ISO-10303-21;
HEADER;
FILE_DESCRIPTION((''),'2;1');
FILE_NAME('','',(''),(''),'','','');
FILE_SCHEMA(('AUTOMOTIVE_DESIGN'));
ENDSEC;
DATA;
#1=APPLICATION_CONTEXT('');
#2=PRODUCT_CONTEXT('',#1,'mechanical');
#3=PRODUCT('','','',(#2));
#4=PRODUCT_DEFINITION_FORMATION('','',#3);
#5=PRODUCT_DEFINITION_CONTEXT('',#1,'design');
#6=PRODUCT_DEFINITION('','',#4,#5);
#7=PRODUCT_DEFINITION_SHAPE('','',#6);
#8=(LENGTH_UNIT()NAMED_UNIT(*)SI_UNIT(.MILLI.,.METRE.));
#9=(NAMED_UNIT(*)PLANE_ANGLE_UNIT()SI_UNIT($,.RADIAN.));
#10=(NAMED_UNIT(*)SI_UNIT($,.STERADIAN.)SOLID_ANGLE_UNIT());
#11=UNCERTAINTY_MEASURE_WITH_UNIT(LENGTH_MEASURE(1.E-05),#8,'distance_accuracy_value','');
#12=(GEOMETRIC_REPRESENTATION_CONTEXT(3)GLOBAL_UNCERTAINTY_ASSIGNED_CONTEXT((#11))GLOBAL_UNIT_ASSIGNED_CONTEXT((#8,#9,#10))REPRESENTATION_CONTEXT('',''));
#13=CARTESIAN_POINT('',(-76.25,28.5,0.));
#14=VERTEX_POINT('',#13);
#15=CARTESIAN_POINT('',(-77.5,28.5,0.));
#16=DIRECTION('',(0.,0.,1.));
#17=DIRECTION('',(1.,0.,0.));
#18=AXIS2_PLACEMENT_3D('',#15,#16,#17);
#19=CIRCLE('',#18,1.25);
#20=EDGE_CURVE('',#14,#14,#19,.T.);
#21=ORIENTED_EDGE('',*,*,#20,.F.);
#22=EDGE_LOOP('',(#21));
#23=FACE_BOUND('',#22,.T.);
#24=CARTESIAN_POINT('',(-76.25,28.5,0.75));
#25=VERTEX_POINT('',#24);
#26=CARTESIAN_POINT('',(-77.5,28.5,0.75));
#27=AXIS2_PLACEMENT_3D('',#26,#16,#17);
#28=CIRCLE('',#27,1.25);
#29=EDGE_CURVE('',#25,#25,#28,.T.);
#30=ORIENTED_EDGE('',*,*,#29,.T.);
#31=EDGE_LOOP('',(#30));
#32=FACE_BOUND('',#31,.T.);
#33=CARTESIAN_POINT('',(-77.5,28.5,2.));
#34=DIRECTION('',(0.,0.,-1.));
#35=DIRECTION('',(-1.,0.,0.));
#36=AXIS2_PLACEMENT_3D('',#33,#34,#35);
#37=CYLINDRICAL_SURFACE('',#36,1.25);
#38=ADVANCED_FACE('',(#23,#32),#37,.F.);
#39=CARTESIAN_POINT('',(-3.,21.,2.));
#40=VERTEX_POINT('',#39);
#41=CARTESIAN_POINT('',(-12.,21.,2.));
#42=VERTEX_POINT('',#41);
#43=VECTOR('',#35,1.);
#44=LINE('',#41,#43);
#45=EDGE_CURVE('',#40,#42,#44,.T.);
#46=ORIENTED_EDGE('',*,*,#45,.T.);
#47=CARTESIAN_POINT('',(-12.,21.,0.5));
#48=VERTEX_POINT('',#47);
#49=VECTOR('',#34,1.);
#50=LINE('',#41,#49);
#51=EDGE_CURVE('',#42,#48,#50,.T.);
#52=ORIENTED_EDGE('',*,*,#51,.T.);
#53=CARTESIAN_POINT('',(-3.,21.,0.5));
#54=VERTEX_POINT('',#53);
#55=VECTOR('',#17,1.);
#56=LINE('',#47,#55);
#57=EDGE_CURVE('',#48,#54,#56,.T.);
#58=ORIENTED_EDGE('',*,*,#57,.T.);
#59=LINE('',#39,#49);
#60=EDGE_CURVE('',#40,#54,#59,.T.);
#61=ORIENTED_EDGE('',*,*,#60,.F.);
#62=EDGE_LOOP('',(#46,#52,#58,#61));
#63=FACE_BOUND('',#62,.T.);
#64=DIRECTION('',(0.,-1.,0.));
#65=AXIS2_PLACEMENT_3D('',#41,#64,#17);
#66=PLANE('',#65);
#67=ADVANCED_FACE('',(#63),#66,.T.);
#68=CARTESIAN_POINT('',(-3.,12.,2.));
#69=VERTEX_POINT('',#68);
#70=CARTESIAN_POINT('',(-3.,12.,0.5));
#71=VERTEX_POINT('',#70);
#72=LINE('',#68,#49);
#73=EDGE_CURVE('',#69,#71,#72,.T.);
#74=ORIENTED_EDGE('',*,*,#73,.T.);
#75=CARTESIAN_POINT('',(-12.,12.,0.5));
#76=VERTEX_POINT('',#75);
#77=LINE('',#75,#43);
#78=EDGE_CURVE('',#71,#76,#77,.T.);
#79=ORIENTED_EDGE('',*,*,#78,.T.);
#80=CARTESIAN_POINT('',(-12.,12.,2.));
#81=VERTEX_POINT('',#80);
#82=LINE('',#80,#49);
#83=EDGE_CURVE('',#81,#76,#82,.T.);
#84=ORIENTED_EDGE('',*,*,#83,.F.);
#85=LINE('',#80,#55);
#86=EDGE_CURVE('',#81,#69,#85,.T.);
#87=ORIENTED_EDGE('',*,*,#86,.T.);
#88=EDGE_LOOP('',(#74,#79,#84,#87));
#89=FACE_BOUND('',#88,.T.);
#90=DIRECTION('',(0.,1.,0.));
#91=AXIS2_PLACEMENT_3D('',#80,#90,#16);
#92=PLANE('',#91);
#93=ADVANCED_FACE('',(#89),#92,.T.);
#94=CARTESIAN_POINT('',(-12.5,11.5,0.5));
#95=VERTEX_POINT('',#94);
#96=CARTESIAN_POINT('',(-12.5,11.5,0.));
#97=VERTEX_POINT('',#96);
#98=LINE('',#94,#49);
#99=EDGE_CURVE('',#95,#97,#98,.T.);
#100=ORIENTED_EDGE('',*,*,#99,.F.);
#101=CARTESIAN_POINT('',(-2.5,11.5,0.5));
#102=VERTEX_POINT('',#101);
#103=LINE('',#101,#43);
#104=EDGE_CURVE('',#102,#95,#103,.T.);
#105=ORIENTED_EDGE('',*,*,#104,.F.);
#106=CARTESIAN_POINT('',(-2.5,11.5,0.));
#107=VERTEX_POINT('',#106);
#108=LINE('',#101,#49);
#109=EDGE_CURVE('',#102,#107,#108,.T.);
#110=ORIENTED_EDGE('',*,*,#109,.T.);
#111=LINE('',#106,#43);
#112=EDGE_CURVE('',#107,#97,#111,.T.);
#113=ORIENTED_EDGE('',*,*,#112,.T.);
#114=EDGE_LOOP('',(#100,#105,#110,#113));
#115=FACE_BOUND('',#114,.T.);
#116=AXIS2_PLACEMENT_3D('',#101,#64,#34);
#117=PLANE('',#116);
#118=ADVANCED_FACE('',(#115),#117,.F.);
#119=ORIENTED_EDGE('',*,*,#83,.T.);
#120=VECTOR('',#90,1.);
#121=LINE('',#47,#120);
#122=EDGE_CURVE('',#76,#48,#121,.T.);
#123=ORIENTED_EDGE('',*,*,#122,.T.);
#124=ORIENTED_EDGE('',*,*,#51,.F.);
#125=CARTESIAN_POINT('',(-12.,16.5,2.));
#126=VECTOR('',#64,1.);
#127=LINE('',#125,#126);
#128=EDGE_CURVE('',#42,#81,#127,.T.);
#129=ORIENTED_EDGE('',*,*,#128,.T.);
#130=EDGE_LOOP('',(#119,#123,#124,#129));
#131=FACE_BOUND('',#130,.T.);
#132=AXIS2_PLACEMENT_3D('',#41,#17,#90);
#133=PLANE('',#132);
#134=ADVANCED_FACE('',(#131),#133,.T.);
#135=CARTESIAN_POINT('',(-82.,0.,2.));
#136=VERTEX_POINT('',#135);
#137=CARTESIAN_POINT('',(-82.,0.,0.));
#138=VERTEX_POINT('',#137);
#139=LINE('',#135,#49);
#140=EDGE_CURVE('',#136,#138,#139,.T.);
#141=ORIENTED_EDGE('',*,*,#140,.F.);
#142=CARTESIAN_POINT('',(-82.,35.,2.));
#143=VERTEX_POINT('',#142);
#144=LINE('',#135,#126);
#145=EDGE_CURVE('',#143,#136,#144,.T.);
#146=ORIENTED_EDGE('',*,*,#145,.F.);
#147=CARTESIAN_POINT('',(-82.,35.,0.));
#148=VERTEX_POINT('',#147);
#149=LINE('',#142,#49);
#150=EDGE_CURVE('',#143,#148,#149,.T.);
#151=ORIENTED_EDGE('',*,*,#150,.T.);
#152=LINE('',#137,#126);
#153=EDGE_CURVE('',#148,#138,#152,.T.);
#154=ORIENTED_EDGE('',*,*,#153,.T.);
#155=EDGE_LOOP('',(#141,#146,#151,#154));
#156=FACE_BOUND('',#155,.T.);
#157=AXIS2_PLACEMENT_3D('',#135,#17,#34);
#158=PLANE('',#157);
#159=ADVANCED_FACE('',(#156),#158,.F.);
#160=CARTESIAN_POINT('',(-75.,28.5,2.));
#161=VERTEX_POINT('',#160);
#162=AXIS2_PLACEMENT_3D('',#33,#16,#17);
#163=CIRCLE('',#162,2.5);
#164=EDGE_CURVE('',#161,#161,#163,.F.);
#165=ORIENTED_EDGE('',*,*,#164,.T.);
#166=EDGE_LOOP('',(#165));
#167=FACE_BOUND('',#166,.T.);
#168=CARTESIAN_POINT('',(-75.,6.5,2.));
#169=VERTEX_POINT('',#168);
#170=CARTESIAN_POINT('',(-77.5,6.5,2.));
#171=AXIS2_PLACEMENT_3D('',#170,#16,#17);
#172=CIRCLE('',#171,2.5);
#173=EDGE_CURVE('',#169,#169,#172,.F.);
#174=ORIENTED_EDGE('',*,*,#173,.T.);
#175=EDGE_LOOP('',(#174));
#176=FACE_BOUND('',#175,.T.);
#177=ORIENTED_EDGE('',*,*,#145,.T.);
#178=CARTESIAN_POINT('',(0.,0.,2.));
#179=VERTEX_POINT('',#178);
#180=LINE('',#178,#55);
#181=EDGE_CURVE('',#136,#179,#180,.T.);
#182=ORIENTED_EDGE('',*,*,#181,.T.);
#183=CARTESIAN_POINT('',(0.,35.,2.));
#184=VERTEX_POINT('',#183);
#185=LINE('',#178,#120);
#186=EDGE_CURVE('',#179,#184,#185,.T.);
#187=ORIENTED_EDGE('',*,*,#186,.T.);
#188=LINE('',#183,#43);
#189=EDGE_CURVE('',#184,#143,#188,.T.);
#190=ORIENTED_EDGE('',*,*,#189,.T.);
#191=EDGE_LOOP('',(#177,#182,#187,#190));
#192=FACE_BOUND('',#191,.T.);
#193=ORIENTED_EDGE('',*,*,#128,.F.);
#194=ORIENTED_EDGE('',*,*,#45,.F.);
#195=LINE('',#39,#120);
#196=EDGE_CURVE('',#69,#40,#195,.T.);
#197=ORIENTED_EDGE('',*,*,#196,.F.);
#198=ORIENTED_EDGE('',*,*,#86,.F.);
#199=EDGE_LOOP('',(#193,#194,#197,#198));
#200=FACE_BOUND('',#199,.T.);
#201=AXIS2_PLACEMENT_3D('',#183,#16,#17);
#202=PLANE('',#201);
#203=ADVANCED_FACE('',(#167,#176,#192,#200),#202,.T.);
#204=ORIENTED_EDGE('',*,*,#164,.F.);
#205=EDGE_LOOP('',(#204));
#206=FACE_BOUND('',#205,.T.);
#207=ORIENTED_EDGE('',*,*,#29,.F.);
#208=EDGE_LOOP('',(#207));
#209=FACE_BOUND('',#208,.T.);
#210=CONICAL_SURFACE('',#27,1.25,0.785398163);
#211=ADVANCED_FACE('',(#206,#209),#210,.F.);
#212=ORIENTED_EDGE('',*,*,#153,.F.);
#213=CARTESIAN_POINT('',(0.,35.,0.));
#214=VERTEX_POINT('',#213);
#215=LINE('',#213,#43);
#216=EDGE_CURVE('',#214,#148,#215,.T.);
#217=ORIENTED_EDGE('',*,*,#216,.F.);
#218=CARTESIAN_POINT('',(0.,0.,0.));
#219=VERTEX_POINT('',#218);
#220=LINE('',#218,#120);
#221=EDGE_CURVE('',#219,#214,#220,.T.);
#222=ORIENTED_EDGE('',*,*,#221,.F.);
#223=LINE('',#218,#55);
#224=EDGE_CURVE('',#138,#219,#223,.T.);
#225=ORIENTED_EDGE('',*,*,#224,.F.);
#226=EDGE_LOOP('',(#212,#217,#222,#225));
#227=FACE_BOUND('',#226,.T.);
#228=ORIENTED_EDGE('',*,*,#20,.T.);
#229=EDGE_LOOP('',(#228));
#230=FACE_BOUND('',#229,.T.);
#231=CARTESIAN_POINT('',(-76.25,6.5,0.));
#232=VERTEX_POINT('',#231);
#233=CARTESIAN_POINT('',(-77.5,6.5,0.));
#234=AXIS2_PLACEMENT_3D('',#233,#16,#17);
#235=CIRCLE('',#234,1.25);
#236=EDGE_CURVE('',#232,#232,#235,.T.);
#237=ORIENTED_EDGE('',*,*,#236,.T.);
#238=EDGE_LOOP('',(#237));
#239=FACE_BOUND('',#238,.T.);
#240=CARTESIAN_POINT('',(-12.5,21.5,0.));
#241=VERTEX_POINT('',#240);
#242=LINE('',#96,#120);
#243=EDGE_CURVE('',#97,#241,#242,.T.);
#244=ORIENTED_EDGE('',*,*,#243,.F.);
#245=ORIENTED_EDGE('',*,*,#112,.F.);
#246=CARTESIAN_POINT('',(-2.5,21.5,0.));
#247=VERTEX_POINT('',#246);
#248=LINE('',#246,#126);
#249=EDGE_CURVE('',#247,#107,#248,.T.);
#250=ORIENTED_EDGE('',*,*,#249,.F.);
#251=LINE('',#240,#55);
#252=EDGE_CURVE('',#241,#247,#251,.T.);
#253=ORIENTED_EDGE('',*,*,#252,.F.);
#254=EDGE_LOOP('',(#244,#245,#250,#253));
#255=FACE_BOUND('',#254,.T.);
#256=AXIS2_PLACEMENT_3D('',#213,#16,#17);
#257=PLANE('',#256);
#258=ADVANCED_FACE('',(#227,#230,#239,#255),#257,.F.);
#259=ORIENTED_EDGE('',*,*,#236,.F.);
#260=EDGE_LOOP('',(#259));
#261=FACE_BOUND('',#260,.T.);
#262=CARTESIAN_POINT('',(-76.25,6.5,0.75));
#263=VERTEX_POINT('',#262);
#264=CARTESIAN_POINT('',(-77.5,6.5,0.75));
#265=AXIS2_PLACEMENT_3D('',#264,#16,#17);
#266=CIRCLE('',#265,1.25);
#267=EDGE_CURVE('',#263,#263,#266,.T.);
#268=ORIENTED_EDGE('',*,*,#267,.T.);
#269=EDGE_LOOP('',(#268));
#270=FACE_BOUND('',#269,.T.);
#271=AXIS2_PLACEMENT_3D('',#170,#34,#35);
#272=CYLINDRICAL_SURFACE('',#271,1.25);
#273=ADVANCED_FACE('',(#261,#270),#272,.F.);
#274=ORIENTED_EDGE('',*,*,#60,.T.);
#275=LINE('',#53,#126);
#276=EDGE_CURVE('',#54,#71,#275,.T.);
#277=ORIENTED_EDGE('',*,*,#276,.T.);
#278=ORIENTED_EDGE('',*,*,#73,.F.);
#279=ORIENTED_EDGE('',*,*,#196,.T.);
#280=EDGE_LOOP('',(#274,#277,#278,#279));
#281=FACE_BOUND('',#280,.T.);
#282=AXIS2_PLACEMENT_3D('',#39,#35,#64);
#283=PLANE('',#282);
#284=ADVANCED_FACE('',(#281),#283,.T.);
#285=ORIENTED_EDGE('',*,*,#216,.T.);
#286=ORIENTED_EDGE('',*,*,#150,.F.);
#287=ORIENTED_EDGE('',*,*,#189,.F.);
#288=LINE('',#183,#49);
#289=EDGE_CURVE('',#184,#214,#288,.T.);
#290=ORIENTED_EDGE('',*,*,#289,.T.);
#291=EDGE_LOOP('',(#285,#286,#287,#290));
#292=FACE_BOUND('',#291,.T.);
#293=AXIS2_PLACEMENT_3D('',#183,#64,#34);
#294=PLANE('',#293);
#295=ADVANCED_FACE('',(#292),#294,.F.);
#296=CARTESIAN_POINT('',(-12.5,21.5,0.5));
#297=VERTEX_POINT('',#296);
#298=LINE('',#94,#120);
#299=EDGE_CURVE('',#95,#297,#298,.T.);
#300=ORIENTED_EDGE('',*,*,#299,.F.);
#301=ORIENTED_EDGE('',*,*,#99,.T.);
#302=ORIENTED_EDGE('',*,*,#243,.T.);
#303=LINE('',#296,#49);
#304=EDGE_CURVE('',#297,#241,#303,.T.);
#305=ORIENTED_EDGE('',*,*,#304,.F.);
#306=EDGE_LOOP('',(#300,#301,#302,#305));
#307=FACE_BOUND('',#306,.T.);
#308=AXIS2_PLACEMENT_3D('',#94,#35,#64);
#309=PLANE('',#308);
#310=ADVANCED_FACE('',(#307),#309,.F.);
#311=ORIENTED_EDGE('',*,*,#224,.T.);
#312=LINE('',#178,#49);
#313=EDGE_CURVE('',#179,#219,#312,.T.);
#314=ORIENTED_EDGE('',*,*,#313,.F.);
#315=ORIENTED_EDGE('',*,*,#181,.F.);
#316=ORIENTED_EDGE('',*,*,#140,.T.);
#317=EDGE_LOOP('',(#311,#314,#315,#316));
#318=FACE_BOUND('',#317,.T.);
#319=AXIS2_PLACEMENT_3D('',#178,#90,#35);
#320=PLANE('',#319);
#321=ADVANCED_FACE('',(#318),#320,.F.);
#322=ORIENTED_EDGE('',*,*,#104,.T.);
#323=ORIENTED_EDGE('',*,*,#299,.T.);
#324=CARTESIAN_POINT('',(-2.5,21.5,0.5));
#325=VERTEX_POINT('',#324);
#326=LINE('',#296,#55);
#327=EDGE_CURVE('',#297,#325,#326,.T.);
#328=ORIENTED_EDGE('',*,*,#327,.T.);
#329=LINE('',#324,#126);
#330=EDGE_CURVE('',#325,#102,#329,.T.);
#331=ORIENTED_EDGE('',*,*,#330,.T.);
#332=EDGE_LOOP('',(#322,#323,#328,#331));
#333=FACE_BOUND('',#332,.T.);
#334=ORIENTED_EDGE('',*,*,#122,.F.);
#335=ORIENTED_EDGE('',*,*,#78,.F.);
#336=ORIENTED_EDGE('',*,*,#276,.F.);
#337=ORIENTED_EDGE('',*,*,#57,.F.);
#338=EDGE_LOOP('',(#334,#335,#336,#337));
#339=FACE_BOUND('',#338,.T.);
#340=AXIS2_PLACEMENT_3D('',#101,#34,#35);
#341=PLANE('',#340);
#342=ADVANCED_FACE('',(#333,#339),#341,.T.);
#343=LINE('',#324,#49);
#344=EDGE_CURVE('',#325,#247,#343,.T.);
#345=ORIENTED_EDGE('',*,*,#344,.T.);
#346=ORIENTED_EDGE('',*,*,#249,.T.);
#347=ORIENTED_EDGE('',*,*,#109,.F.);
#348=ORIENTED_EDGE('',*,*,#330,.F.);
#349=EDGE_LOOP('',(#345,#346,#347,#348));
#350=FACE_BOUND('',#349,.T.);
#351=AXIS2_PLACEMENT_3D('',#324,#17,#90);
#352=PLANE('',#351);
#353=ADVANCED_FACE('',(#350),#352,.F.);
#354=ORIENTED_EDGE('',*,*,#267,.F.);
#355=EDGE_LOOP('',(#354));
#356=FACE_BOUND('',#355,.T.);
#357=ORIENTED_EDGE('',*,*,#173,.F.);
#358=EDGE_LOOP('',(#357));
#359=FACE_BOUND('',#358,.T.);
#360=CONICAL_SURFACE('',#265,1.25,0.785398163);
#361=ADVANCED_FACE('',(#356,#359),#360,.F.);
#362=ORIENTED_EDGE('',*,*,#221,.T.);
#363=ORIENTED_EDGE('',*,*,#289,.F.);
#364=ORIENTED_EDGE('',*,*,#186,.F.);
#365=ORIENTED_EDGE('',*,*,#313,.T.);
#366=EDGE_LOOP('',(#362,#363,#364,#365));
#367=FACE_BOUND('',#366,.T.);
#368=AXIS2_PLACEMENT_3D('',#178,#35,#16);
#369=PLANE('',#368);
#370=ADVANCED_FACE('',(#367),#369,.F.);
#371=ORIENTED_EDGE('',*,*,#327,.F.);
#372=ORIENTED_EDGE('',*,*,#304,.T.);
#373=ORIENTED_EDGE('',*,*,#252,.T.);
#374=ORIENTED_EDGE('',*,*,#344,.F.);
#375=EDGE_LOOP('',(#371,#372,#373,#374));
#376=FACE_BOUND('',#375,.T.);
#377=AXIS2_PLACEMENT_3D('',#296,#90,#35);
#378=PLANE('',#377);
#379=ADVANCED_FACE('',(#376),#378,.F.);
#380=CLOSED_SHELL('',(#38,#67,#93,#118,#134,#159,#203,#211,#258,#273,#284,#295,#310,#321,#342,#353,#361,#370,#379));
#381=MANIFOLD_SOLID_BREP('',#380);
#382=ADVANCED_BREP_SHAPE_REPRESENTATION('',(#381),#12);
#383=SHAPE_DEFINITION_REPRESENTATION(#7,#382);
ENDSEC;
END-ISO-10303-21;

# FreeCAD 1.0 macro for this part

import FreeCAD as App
import Part
import Sketcher
Q = App.Units.Quantity


def edges_at(feature, points):
    """Names of the edges that pass closest to the given points."""
    edges = feature.Shape.Edges
    near = lambda p: min(range(len(edges)), key=lambda i: edges[i].distToShape(Part.Vertex(*p))[0])
    return sorted({f"Edge{near(p) + 1}" for p in points})


def add_polygon(sketch, points):
    """Adds a closed chain of lines whose ends are joined by coincident constraints."""
    first, n = sketch.GeometryCount, len(points)
    for a, b in zip(points, points[1:] + points[:1]):
        sketch.addGeometry(Part.LineSegment(App.Vector(*a, 0), App.Vector(*b, 0)), False)
    for i in range(n):
        sketch.addConstraint(Sketcher.Constraint("Coincident", first + i, 2, first + (i + 1) % n, 1))

doc = App.newDocument("Part")
body = doc.addObject("PartDesign::Body", "Body")

# Sketch on XY plane
sketch1 = body.newObject("Sketcher::SketchObject", "Sketch")
sketch1.AttachmentSupport = (doc.getObject("XY_Plane"), [""])
sketch1.MapMode = "FlatFace"
add_polygon(sketch1, [(-82, 35), (-82, 0), (0, 0), (0, 35)])  # lines 0-3
sketch1.addGeometry(Part.Circle(App.Vector(-77.5, 6.5, 0), App.Vector(0, 0, 1), 1.2), False)  # 4
add_polygon(sketch1, [(-12, 12), (-12, 21), (-3, 21), (-3, 12)])  # lines 5-8
sketch1.addGeometry(Part.Circle(App.Vector(-77.5, 28.5, 0), App.Vector(0, 0, 1), 1.2), False)  # 9
sketch1.addConstraint(Sketcher.Constraint("Vertical", 0))
sketch1.addConstraint(Sketcher.Constraint("Horizontal", 1))
sketch1.addConstraint(Sketcher.Constraint("Vertical", 2))
sketch1.addConstraint(Sketcher.Constraint("Horizontal", 3))
sketch1.addConstraint(Sketcher.Constraint("Vertical", 5))
sketch1.addConstraint(Sketcher.Constraint("Horizontal", 6))
sketch1.addConstraint(Sketcher.Constraint("Vertical", 7))
sketch1.addConstraint(Sketcher.Constraint("Horizontal", 8))
sketch1.addConstraint(Sketcher.Constraint("Coincident", 1, 2, -1, 1))
sketch1.addConstraint(Sketcher.Constraint("Equal", 4, 9))
sketch1.addConstraint(Sketcher.Constraint("Vertical", 4, 3, 9, 3))
sketch1.addConstraint(Sketcher.Constraint("Equal", 8, 5))
sketch1.addConstraint(Sketcher.Constraint("Diameter", 4, Q("2.5 mm")))
sketch1.addConstraint(Sketcher.Constraint("DistanceX", 1, 1, 1, 2, Q("82 mm")))
sketch1.addConstraint(Sketcher.Constraint("DistanceX", 6, 1, 6, 2, Q("9 mm")))
sketch1.addConstraint(Sketcher.Constraint("DistanceY", 0, 2, 0, 1, Q("35 mm")))
sketch1.addConstraint(Sketcher.Constraint("DistanceX", 5, 2, -1, 1, Q("12 mm")))
sketch1.addConstraint(Sketcher.Constraint("DistanceY", -1, 1, 5, 2, Q("21 mm")))
sketch1.addConstraint(Sketcher.Constraint("DistanceY", 4, 3, 9, 3, Q("22 mm")))
sketch1.addConstraint(Sketcher.Constraint("DistanceX", 4, 3, -1, 1, Q("77.5 mm")))
sketch1.addConstraint(Sketcher.Constraint("DistanceY", -1, 1, 4, 3, Q("6.5 mm")))
pad1 = body.newObject("PartDesign::Pad", "Pad")
pad1.Profile = sketch1
pad1.Length = 2
doc.recompute()

chamfer = body.newObject("PartDesign::Chamfer", "Chamfer")
chamfer.Base = (pad1, edges_at(pad1, [(-78.75, 28.5, 2), (-78.75, 6.5, 2)]))
chamfer.Size = 1.25

# Sketch on XY plane
sketch2 = body.newObject("Sketcher::SketchObject", "Sketch001")
sketch2.AttachmentSupport = (doc.getObject("XY_Plane"), [""])
sketch2.MapMode = "FlatFace"
add_polygon(sketch2, [(-2, 22), (-2, 12), (-12, 12), (-12, 22)])  # lines 0-3
sketch2.addConstraint(Sketcher.Constraint("Vertical", 0))
sketch2.addConstraint(Sketcher.Constraint("Horizontal", 1))
sketch2.addConstraint(Sketcher.Constraint("Vertical", 2))
sketch2.addConstraint(Sketcher.Constraint("Horizontal", 3))
sketch2.addConstraint(Sketcher.Constraint("Equal", 3, 0))
sketch2.addConstraint(Sketcher.Constraint("DistanceX", 1, 2, 1, 1, Q("10 mm")))
sketch2.addConstraint(Sketcher.Constraint("DistanceX", 0, 2, -1, 1, Q("2.5 mm")))
sketch2.addConstraint(Sketcher.Constraint("DistanceY", -1, 1, 0, 2, Q("11.5 mm")))
pocket1 = body.newObject("PartDesign::Pocket", "Pocket")
pocket1.Profile = sketch2
pocket1.Length = 0.5
pocket1.Reversed = True

doc.recompute()
